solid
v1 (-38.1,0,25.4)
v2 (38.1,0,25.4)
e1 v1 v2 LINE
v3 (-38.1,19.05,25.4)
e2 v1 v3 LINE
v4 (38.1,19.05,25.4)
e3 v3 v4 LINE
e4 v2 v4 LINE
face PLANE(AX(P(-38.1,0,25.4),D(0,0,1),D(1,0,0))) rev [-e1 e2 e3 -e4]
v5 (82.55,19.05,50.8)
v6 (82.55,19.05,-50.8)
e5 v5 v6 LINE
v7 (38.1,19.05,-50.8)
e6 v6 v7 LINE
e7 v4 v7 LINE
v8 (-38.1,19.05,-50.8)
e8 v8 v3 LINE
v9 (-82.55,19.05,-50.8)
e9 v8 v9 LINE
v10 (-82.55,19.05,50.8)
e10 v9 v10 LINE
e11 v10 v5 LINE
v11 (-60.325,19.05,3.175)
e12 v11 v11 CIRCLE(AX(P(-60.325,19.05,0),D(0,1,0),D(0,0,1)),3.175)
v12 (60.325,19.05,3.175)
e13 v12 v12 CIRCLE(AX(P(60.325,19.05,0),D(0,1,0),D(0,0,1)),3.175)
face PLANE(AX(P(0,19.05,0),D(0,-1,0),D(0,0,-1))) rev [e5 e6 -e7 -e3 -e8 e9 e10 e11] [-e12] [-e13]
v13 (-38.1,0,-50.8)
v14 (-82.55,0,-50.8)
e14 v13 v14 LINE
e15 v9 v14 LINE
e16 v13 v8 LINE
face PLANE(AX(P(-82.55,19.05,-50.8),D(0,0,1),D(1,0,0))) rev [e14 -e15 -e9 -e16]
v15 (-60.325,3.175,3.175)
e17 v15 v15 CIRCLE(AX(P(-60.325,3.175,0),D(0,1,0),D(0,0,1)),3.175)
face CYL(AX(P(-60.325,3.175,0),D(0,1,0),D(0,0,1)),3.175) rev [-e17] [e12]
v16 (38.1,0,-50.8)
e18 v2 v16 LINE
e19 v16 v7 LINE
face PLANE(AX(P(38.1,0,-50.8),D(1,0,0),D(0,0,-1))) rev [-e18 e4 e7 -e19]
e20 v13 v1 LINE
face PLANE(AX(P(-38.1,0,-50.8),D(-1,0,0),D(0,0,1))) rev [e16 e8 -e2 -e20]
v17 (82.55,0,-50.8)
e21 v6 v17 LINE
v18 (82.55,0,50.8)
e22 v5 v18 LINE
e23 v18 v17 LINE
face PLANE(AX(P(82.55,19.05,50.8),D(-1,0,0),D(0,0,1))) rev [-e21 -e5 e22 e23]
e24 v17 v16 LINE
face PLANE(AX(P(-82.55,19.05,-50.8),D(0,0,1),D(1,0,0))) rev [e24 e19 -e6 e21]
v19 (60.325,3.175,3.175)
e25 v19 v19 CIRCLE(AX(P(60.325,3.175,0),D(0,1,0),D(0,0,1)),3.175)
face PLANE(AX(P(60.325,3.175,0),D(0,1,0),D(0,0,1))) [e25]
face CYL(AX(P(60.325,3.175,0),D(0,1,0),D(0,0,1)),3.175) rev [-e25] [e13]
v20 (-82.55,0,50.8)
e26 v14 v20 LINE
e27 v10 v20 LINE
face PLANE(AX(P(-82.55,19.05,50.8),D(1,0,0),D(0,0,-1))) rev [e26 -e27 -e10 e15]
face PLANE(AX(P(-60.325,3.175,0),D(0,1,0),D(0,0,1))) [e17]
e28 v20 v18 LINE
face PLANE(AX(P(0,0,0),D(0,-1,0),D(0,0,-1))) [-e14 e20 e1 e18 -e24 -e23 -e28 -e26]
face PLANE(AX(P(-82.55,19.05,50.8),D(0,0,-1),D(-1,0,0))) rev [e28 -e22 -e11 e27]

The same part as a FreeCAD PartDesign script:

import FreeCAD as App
import Part
import Sketcher

V = App.Vector
Q = App.Units.Quantity

doc = App.newDocument("Part")
body = doc.addObject("PartDesign::Body", "Body")

sketch1 = body.newObject("Sketcher::SketchObject", "Sketch")
sketch1.AttachmentSupport = (doc.getObject("XZ_Plane"), [""])
sketch1.MapMode = "FlatFace"
sketch1.addGeometry([
    Part.LineSegment(V(-83, -51, 0), V(-83, 51, 0)),
    Part.LineSegment(V(-83, 51, 0), V(83, 51, 0)),
    Part.LineSegment(V(83, 51, 0), V(83, -51, 0)),
    Part.LineSegment(V(83, -51, 0), V(-83, -51, 0)),
], False)
sketch1.addConstraint([
    Sketcher.Constraint("Coincident", 0, 2, 1, 1),
    Sketcher.Constraint("Coincident", 1, 2, 2, 1),
    Sketcher.Constraint("Coincident", 2, 2, 3, 1),
    Sketcher.Constraint("Coincident", 3, 2, 0, 1),
    Sketcher.Constraint("Vertical", 0),
    Sketcher.Constraint("Horizontal", 1),
    Sketcher.Constraint("Vertical", 2),
    Sketcher.Constraint("Horizontal", 3),
    Sketcher.Constraint("Symmetric", 0, 2, 2, 2, -1, 1),
    Sketcher.Constraint("DistanceY", 0, 1, 0, 2, Q("4 in")),
    Sketcher.Constraint("DistanceX", 1, 1, 1, 2, Q("6.5 in")),
])
pad1 = body.newObject("PartDesign::Pad", "Pad")
pad1.Profile = sketch1
pad1.Length = Q("0.75 in")
pad1.Reversed = True

sketch2 = body.newObject("Sketcher::SketchObject", "Sketch001")
sketch2.AttachmentSupport = (doc.getObject("XZ_Plane"), [""])
sketch2.MapMode = "FlatFace"
sketch2.AttachmentOffset = App.Placement(V(0, 0, -0.75 * 25.4), App.Rotation())
sketch2.addGeometry([
    Part.LineSegment(V(-38, -51, 0), V(-38, 25, 0)),
    Part.LineSegment(V(-38, 25, 0), V(38, 25, 0)),
    Part.LineSegment(V(38, 25, 0), V(38, -51, 0)),
    Part.LineSegment(V(38, -51, 0), V(-38, -51, 0)),
], False)
sketch2.addConstraint([
    Sketcher.Constraint("Coincident", 0, 2, 1, 1),
    Sketcher.Constraint("Coincident", 1, 2, 2, 1),
    Sketcher.Constraint("Coincident", 2, 2, 3, 1),
    Sketcher.Constraint("Coincident", 3, 2, 0, 1),
    Sketcher.Constraint("Vertical", 0),
    Sketcher.Constraint("Horizontal", 1),
    Sketcher.Constraint("Vertical", 2),
    Sketcher.Constraint("Horizontal", 3),
    Sketcher.Constraint("Equal", 3, 0),
    Sketcher.Constraint("DistanceX", 1, 1, 1, 2, Q("3 in")),
    Sketcher.Constraint("DistanceY", -1, 1, 0, 2, Q("1 in")),
    Sketcher.Constraint("DistanceX", 0, 2, -1, 1, Q("1.5 in")),
])
pocket1 = body.newObject("PartDesign::Pocket", "Pocket")
pocket1.Profile = sketch2
pocket1.Type = "ThroughAll"
pocket1.Reversed = True

sketch3 = body.newObject("Sketcher::SketchObject", "Sketch002")
sketch3.AttachmentSupport = (doc.getObject("XZ_Plane"), [""])
sketch3.MapMode = "FlatFace"
sketch3.AttachmentOffset = App.Placement(V(0, 0, -0.75 * 25.4), App.Rotation())
sketch3.addGeometry([
    Part.Circle(V(-60.3, 0, 0), V(0, 0, 1), 3.2),
    Part.Circle(V(60.3, 0, 0), V(0, 0, 1), 3.2),
], False)
sketch3.addConstraint([
    Sketcher.Constraint("Equal", 0, 1),
    Sketcher.Constraint("Symmetric", 0, 3, 1, 3, -1, 1),
    Sketcher.Constraint("PointOnObject", 0, 3, -1),
    Sketcher.Constraint("Diameter", 0, Q("0.25 in")),
    Sketcher.Constraint("DistanceX", 0, 3, 1, 3, Q("4.75 in")),
])
pocket2 = body.newObject("PartDesign::Pocket", "Pocket001")
pocket2.Profile = sketch3
pocket2.Length = Q("0.625 in")
pocket2.Reversed = True

doc.recompute()
